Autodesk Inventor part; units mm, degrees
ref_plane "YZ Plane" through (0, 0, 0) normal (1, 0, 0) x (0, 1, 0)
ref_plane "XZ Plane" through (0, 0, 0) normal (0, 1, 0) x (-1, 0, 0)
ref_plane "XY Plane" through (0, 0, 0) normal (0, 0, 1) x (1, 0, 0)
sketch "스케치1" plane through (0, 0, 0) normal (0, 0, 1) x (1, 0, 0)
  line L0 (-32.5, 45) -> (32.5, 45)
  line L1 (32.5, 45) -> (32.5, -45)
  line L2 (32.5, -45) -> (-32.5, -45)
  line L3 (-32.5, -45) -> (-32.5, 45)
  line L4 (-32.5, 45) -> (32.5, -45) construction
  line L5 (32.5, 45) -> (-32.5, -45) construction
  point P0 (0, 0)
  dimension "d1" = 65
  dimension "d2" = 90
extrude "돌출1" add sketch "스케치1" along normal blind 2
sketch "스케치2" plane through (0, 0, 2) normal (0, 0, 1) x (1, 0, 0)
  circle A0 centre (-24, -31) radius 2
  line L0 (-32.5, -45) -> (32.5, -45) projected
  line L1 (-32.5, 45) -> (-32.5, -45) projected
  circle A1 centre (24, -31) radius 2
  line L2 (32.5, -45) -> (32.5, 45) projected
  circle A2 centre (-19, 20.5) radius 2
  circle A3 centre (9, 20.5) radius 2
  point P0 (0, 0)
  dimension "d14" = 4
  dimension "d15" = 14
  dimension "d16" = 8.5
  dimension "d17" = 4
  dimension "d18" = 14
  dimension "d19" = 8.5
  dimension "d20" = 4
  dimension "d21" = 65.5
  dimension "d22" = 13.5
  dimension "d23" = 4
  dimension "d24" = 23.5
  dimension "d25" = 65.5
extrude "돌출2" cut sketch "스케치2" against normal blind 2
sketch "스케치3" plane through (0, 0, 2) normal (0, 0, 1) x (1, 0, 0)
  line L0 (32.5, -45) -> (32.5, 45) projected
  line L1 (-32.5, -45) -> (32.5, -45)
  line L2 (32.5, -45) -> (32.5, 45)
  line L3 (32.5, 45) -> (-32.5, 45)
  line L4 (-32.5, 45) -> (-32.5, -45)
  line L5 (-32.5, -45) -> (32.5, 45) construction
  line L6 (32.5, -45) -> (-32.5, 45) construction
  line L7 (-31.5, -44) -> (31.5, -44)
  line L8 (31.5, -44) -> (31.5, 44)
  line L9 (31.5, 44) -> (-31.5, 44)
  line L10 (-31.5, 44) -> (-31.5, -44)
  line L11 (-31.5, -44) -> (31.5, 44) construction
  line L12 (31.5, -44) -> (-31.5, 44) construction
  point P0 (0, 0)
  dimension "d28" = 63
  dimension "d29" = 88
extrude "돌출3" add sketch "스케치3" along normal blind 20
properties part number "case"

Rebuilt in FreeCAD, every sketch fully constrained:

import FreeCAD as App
import Part
import Sketcher
from FreeCAD import Vector


def add_polygon(sketch, points):
    """Adds a closed chain of lines whose ends are joined by coincident constraints."""
    first, n = sketch.GeometryCount, len(points)
    for a, b in zip(points, points[1:] + points[:1]):
        sketch.addGeometry(Part.LineSegment(App.Vector(*a, 0), App.Vector(*b, 0)), False)
    for i in range(n):
        sketch.addConstraint(Sketcher.Constraint("Coincident", first + i, 2, first + (i + 1) % n, 1))

doc = App.newDocument("Part")
body = doc.addObject("PartDesign::Body", "Body")

# Sketch on XY plane
sketch1 = doc.addObject("Sketcher::SketchObject", "Sketch")
body.addObject(sketch1)
sketch1.AttachmentSupport = (doc.XY_Plane, [""])
sketch1.MapMode = "FlatFace"
add_polygon(sketch1, [(32, 45), (-32, 45), (-32, -45), (32, -45)])  # lines 0-3
sketch1.addConstraint([
    Sketcher.Constraint("Horizontal", 0),
    Sketcher.Constraint("Vertical", 1),
    Sketcher.Constraint("Horizontal", 2),
    Sketcher.Constraint("Vertical", 3),
    Sketcher.Constraint("Symmetric", 0, 2, 2, 2, -1, 1),
    Sketcher.Constraint("DistanceX", 0, 2, 0, 1, 65.0),
    Sketcher.Constraint("DistanceY", 1, 2, 1, 1, 90.0),
])
pad1 = doc.addObject("PartDesign::Pad", "Pad")
body.addObject(pad1)
pad1.Profile = sketch1
pad1.Length = 2

# Sketch on XY plane
sketch2 = doc.addObject("Sketcher::SketchObject", "Sketch001")
body.addObject(sketch2)
sketch2.AttachmentSupport = (doc.XY_Plane, [""])
sketch2.MapMode = "FlatFace"
sketch2.AttachmentOffset = App.Placement(Vector(0, 0, 2), App.Rotation())
sketch2.addGeometry([
    Part.Circle(Vector(-24, -31, 0), Vector(0, 0, 1), 2),
    Part.Circle(Vector(24, -31, 0), Vector(0, 0, 1), 2),
    Part.Circle(Vector(-19, 20.5, 0), Vector(0, 0, 1), 2),
    Part.Circle(Vector(9, 20.5, 0), Vector(0, 0, 1), 2),
], False)
sketch2.addConstraint([
    Sketcher.Constraint("Equal", 0, 1),
    Sketcher.Constraint("Equal", 1, 2),
    Sketcher.Constraint("Equal", 2, 3),
    Sketcher.Constraint("Symmetric", 0, 3, 1, 3, -2),
    Sketcher.Constraint("Horizontal", 2, 3, 3, 3),
    Sketcher.Constraint("Diameter", 0, 4.0),
    Sketcher.Constraint("DistanceX", 0, 3, -1, 1, 24.0),
    Sketcher.Constraint("DistanceY", 0, 3, -1, 1, 31.0),
    Sketcher.Constraint("DistanceX", 2, 3, -1, 1, 19.0),
    Sketcher.Constraint("DistanceX", -1, 1, 3, 3, 9.0),
    Sketcher.Constraint("DistanceY", -1, 1, 2, 3, 20.5),
])
pocket1 = doc.addObject("PartDesign::Pocket", "Pocket")
body.addObject(pocket1)
pocket1.Profile = sketch2
pocket1.Length = 2

# Sketch on XY plane
sketch3 = doc.addObject("Sketcher::SketchObject", "Sketch002")
body.addObject(sketch3)
sketch3.AttachmentSupport = (doc.XY_Plane, [""])
sketch3.MapMode = "FlatFace"
sketch3.AttachmentOffset = App.Placement(Vector(0, 0, 2), App.Rotation())
add_polygon(sketch3, [(-32, -45), (32, -45), (32, 45), (-32, 45)])  # lines 0-3
add_polygon(sketch3, [(32, -44), (-32, -44), (-32, 44), (32, 44)])  # lines 4-7
sketch3.addConstraint([
    Sketcher.Constraint("Horizontal", 0),
    Sketcher.Constraint("Vertical", 1),
    Sketcher.Constraint("Horizontal", 2),
    Sketcher.Constraint("Vertical", 3),
    Sketcher.Constraint("Horizontal", 4),
    Sketcher.Constraint("Vertical", 5),
    Sketcher.Constraint("Horizontal", 6),
    Sketcher.Constraint("Vertical", 7),
    Sketcher.Constraint("Symmetric", 0, 2, 2, 2, -1, 1),
    Sketcher.Constraint("Symmetric", 4, 2, 6, 2, -1, 1),
    Sketcher.Constraint("DistanceX", 4, 2, 4, 1, 63.0),
    Sketcher.Constraint("DistanceY", 5, 1, 5, 2, 88.0),
    Sketcher.Constraint("DistanceX", 0, 1, 0, 2, 65.0),
    Sketcher.Constraint("DistanceY", 1, 1, 1, 2, 90.0),
])
pad2 = doc.addObject("PartDesign::Pad", "Pad001")
body.addObject(pad2)
pad2.Profile = sketch3
pad2.Length = 20

doc.recompute()
